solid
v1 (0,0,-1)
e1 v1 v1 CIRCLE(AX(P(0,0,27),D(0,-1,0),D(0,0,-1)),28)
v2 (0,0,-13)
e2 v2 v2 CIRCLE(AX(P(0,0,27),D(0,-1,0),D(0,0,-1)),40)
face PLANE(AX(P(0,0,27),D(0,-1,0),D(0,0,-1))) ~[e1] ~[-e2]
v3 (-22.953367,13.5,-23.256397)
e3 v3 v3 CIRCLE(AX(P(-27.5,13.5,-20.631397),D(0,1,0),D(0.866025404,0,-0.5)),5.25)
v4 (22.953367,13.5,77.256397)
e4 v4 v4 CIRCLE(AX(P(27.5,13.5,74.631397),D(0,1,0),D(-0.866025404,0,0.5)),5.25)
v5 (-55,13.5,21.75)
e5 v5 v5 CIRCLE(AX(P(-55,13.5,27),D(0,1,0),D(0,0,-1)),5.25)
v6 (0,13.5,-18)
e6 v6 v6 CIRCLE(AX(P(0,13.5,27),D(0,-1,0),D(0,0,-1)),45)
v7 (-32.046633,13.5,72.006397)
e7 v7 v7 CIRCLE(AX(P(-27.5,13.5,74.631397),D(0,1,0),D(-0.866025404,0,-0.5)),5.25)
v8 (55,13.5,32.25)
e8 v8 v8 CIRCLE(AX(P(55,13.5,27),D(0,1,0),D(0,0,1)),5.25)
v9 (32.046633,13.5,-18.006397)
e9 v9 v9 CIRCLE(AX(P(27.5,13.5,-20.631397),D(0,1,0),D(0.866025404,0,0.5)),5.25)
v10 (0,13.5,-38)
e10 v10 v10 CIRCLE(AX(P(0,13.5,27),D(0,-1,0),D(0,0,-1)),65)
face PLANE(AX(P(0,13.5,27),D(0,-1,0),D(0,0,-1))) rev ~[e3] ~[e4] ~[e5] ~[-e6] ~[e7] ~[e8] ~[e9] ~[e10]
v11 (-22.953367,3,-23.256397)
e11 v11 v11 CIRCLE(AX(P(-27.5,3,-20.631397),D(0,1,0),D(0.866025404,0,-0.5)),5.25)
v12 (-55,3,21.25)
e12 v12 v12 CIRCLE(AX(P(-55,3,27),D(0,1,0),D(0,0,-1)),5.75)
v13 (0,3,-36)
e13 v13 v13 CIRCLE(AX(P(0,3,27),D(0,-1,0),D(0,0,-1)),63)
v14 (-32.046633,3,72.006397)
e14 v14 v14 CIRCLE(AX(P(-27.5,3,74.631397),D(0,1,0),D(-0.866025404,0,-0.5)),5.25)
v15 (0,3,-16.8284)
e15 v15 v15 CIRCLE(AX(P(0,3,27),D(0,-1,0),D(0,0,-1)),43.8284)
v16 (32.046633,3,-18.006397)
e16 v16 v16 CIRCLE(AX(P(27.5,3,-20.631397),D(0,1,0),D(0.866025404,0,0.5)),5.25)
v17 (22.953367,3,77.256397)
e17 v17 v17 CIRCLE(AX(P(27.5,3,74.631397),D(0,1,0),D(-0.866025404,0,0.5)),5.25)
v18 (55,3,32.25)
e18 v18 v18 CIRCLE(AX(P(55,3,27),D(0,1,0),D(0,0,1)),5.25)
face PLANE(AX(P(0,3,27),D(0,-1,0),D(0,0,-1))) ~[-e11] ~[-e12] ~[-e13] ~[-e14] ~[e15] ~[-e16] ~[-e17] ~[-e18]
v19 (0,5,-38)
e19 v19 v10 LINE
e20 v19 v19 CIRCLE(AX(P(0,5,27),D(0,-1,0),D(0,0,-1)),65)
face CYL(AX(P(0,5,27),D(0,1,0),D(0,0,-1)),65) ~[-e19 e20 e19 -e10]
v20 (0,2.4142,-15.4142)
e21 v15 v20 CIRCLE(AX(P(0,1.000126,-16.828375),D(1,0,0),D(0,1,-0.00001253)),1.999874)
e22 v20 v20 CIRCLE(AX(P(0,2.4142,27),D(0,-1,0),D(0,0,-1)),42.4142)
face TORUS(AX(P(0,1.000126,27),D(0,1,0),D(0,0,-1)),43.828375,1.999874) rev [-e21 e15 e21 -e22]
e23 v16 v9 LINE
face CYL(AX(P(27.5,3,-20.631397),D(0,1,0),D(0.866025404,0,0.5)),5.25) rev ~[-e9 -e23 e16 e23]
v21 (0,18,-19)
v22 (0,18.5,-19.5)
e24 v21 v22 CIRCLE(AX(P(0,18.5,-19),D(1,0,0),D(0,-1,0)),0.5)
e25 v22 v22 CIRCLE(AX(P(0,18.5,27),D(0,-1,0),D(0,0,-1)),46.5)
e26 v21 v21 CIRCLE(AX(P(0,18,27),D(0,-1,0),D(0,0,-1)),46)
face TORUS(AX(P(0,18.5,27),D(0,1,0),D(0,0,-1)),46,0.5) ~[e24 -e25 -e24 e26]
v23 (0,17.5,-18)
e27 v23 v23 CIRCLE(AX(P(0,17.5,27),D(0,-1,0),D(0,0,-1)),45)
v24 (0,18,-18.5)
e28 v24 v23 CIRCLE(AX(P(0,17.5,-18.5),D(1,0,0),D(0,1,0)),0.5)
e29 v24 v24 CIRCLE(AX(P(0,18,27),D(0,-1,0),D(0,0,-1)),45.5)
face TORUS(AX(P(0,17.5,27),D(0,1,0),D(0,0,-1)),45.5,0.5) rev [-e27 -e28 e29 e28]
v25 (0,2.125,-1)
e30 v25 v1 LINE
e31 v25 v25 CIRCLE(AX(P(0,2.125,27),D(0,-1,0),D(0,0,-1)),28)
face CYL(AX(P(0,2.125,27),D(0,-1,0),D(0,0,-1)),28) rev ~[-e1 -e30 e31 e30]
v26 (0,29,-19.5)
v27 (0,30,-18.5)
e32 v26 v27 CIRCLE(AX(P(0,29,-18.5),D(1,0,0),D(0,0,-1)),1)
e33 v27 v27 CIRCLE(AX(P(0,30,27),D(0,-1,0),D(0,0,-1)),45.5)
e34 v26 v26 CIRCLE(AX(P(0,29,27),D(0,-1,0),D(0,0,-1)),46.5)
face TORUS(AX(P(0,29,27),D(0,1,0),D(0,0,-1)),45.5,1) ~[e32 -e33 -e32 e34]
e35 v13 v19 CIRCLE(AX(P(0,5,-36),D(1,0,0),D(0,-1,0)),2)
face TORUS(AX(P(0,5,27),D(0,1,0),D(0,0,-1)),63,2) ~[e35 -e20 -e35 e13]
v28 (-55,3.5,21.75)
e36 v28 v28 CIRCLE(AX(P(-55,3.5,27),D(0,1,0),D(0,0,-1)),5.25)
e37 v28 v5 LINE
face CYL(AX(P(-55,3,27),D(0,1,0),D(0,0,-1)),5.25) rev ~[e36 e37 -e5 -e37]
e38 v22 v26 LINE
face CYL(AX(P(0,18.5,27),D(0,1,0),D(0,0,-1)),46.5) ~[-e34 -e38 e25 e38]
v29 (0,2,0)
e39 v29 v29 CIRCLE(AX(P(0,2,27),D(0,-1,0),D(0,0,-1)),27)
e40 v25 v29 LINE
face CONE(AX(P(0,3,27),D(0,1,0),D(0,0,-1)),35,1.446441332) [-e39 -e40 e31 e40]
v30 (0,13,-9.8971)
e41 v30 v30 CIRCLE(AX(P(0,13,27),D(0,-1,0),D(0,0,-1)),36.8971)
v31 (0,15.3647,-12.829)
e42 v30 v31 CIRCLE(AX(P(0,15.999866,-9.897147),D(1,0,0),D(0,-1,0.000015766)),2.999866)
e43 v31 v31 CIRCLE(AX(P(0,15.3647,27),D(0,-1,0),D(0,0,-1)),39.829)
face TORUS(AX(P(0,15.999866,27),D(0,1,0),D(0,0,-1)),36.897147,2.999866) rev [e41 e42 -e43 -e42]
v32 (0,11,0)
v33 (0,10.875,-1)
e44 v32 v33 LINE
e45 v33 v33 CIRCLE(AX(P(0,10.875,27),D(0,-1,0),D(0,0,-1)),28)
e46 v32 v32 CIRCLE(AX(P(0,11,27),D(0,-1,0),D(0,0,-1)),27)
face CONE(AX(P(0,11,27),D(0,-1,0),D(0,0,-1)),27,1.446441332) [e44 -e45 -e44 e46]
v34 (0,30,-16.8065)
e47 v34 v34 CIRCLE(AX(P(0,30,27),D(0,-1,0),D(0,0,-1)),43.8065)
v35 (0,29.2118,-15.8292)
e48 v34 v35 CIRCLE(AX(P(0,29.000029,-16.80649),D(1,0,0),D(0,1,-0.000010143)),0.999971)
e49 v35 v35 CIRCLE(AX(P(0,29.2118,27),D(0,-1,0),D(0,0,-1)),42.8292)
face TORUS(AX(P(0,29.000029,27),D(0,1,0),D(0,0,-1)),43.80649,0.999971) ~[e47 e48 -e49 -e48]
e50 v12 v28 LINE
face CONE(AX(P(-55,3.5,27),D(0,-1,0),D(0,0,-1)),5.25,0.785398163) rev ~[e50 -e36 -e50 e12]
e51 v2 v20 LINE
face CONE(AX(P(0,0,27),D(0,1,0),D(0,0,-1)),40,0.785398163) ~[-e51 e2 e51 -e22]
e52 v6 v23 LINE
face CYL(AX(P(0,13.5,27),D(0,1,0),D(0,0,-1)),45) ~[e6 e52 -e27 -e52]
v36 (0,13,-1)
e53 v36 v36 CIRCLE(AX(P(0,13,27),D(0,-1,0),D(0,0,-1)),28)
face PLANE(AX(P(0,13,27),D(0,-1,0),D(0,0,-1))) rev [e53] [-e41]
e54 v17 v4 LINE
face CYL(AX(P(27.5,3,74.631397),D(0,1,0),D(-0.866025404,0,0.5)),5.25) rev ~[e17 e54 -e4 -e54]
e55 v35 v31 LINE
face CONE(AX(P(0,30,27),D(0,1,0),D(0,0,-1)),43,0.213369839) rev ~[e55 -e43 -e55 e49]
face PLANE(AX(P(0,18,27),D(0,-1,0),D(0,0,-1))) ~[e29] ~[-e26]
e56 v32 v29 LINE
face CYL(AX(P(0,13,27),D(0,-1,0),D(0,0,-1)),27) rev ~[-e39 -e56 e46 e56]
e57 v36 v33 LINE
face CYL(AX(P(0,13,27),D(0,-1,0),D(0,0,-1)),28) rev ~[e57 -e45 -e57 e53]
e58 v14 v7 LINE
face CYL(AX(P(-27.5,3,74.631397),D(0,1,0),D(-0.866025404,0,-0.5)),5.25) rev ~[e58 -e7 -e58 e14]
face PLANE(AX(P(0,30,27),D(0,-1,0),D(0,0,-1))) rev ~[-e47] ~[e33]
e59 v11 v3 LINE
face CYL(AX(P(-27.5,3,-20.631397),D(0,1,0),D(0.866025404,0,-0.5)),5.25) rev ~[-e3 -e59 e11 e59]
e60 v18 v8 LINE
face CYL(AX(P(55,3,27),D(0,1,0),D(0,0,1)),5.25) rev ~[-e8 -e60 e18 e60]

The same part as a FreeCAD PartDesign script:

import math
import FreeCAD as App
import Part
import Sketcher
from FreeCAD import Vector
Q = App.Units.Quantity


def edges_at(feature, points):
    """Names of the edges that pass closest to the given points."""
    edges = feature.Shape.Edges
    near = lambda p: min(range(len(edges)), key=lambda i: edges[i].distToShape(Part.Vertex(*p))[0])
    return sorted({f"Edge{near(p) + 1}" for p in points})

doc = App.newDocument("Part")
body = doc.addObject("PartDesign::Body", "Body")

# Sketch on YZ plane
sketch1 = doc.addObject("Sketcher::SketchObject", "Sketch")
body.addObject(sketch1)
sketch1.AttachmentSupport = (doc.YZ_Plane, [""])
sketch1.MapMode = "FlatFace"
sketch1.addGeometry(Part.LineSegment(Vector(2.125, -1, 0), Vector(0, -1, 0)), False)
sketch1.addGeometry(Part.LineSegment(Vector(0, -1, 0), Vector(0, -13, 0)), False)
sketch1.addGeometry(Part.LineSegment(Vector(0, -13, 0), Vector(2.4142, -15.4142, 0)), False)
sketch1.addGeometry(Part.ArcOfCircle(Part.Circle(Vector(1, -16.8284, 0), Vector(0, 0, 1), 2), math.radians(0), math.radians(45)), False)
sketch1.addGeometry(Part.LineSegment(Vector(3, -16.8284, 0), Vector(3, -36, 0)), False)
sketch1.addGeometry(Part.ArcOfCircle(Part.Circle(Vector(5, -36, 0), Vector(0, 0, 1), 2), math.radians(180), math.radians(270)), False)
sketch1.addGeometry(Part.LineSegment(Vector(5, -38, 0), Vector(13.5, -38, 0)), False)
sketch1.addGeometry(Part.LineSegment(Vector(13.5, -38, 0), Vector(13.5, -18, 0)), False)
sketch1.addGeometry(Part.LineSegment(Vector(13.5, -18, 0), Vector(17.5, -18, 0)), False)
sketch1.addGeometry(Part.ArcOfCircle(Part.Circle(Vector(17.5, -18.5, 0), Vector(0, 0, 1), 0.5), math.radians(0), math.radians(90)), False)
sketch1.addGeometry(Part.LineSegment(Vector(18, -18.5, 0), Vector(18, -19, 0)), False)
sketch1.addGeometry(Part.ArcOfCircle(Part.Circle(Vector(18.5, -19, 0), Vector(0, 0, 1), 0.5), math.radians(180), math.radians(270)), False)
sketch1.addGeometry(Part.LineSegment(Vector(18.5, -19.5, 0), Vector(29, -19.5, 0)), False)
sketch1.addGeometry(Part.ArcOfCircle(Part.Circle(Vector(29, -18.5, 0), Vector(0, 0, 1), 1), math.radians(-90), math.radians(0)), False)
sketch1.addGeometry(Part.LineSegment(Vector(30, -18.5, 0), Vector(30, -16.8065, 0)), False)
sketch1.addGeometry(Part.ArcOfCircle(Part.Circle(Vector(29, -16.8065, 0), Vector(0, 0, 1), 1), math.radians(0), math.radians(77.771984)), False)
sketch1.addGeometry(Part.LineSegment(Vector(29.211795, -15.829221, 0), Vector(15.3647, -12.829, 0)), False)
sketch1.addGeometry(Part.ArcOfCircle(Part.Circle(Vector(16, -9.8971, 0), Vector(0, 0, 1), 3), math.radians(180), math.radians(257.773851)), False)
sketch1.addGeometry(Part.LineSegment(Vector(13, -9.8971, 0), Vector(13, -1, 0)), False)
sketch1.addGeometry(Part.LineSegment(Vector(13, -1, 0), Vector(10.875, -1, 0)), False)
sketch1.addGeometry(Part.LineSegment(Vector(10.875, -1, 0), Vector(11, 0, 0)), False)
sketch1.addGeometry(Part.LineSegment(Vector(11, 0, 0), Vector(2, 0, 0)), False)
sketch1.addGeometry(Part.LineSegment(Vector(2, 0, 0), Vector(2.125, -1, 0)), False)
sketch1.addGeometry(Part.LineSegment(Vector(30, 27, 0), Vector(0, 27, 0)), True)  # axis
sketch1.addConstraint(Sketcher.Constraint("Coincident", 0, 2, 1, 1))
sketch1.addConstraint(Sketcher.Constraint("Coincident", 1, 2, 2, 1))
sketch1.addConstraint(Sketcher.Constraint("Tangent", 2, 2, 3, 2))
sketch1.addConstraint(Sketcher.Constraint("Tangent", 3, 1, 4, 1))
sketch1.addConstraint(Sketcher.Constraint("Tangent", 4, 2, 5, 1))
sketch1.addConstraint(Sketcher.Constraint("Tangent", 5, 2, 6, 1))
sketch1.addConstraint(Sketcher.Constraint("Coincident", 6, 2, 7, 1))
sketch1.addConstraint(Sketcher.Constraint("Coincident", 7, 2, 8, 1))
sketch1.addConstraint(Sketcher.Constraint("Tangent", 8, 2, 9, 2))
sketch1.addConstraint(Sketcher.Constraint("Tangent", 9, 1, 10, 1))
sketch1.addConstraint(Sketcher.Constraint("Tangent", 10, 2, 11, 1))
sketch1.addConstraint(Sketcher.Constraint("Tangent", 11, 2, 12, 1))
sketch1.addConstraint(Sketcher.Constraint("Tangent", 12, 2, 13, 1))
sketch1.addConstraint(Sketcher.Constraint("Tangent", 13, 2, 14, 1))
sketch1.addConstraint(Sketcher.Constraint("Tangent", 14, 2, 15, 1))
sketch1.addConstraint(Sketcher.Constraint("Tangent", 15, 2, 16, 1))
sketch1.addConstraint(Sketcher.Constraint("Tangent", 16, 2, 17, 2))
sketch1.addConstraint(Sketcher.Constraint("Tangent", 17, 1, 18, 1))
sketch1.addConstraint(Sketcher.Constraint("Coincident", 18, 2, 19, 1))
sketch1.addConstraint(Sketcher.Constraint("Coincident", 19, 2, 20, 1))
sketch1.addConstraint(Sketcher.Constraint("Coincident", 20, 2, 21, 1))
sketch1.addConstraint(Sketcher.Constraint("Coincident", 21, 2, 22, 1))
sketch1.addConstraint(Sketcher.Constraint("Coincident", 22, 2, 0, 1))
sketch1.addConstraint(Sketcher.Constraint("Horizontal", 0))
sketch1.addConstraint(Sketcher.Constraint("Vertical", 1))
sketch1.addConstraint(Sketcher.Constraint("Vertical", 4))
sketch1.addConstraint(Sketcher.Constraint("Horizontal", 6))
sketch1.addConstraint(Sketcher.Constraint("Vertical", 7))
sketch1.addConstraint(Sketcher.Constraint("Horizontal", 8))
sketch1.addConstraint(Sketcher.Constraint("Vertical", 10))
sketch1.addConstraint(Sketcher.Constraint("Horizontal", 12))
sketch1.addConstraint(Sketcher.Constraint("Vertical", 14))
sketch1.addConstraint(Sketcher.Constraint("Vertical", 18))
sketch1.addConstraint(Sketcher.Constraint("Horizontal", 19))
sketch1.addConstraint(Sketcher.Constraint("Horizontal", 21))
sketch1.addConstraint(Sketcher.Constraint("Horizontal", 23))
sketch1.addConstraint(Sketcher.Constraint("Equal", 3, 5))
sketch1.addConstraint(Sketcher.Constraint("Equal", 9, 11))
sketch1.addConstraint(Sketcher.Constraint("Equal", 13, 15))
sketch1.addConstraint(Sketcher.Constraint("PointOnObject", 0, 2, -2))
sketch1.addConstraint(Sketcher.Constraint("PointOnObject", 20, 2, -1))
sketch1.addConstraint(Sketcher.Constraint("PointOnObject", 23, 2, -2))
sketch1.addConstraint(Sketcher.Constraint("Horizontal", 9, 3, 13, 3))
sketch1.addConstraint(Sketcher.Constraint("Horizontal", 0, 2, 18, 2))
sketch1.addConstraint(Sketcher.Constraint("Vertical", 14, 2, 23, 1))
sketch1.addConstraint(Sketcher.Constraint("Equal", 0, 19))
sketch1.addConstraint(Sketcher.Constraint("Equal", 20, 22))
sketch1.addConstraint(Sketcher.Constraint("Radius", 3, 2.0))
sketch1.addConstraint(Sketcher.Constraint("Radius", 13, 1.0))
sketch1.addConstraint(Sketcher.Constraint("Radius", 17, 3.0))
sketch1.addConstraint(Sketcher.Constraint("Radius", 9, 0.5))
sketch1.addConstraint(Sketcher.Constraint("DistanceX", 21, 2, 21, 1, 9.0))
sketch1.addConstraint(Sketcher.Constraint("DistanceY", 1, 2, 1, 1, 12.0))
sketch1.addConstraint(Sketcher.Constraint("DistanceY", 7, 1, 7, 2, 20.0))
sketch1.addConstraint(Sketcher.Constraint("DistanceX", 12, 1, 12, 2, 10.5))
sketch1.addConstraint(Sketcher.Constraint("DistanceX", -1, 1, 3, 3, 1.0))
sketch1.addConstraint(Sketcher.Constraint("DistanceY", 0, 2, -1, 1, 1.0))
sketch1.addConstraint(Sketcher.Constraint("DistanceX", -1, 1, 17, 1, 13.0))
sketch1.addConstraint(Sketcher.Constraint("DistanceX", 17, 3, 15, 3, 13.0))
sketch1.addConstraint(Sketcher.Constraint("DistanceX", 4, 2, 6, 2, 10.5))
sketch1.addConstraint(Sketcher.Constraint("Angle", 2, Q("-45 deg")))
sketch1.addConstraint(Sketcher.Constraint("DistanceY", 5, 3, -1, 1, 36.0))
sketch1.addConstraint(Sketcher.Constraint("DistanceY", -1, 1, 23, 1, 27.0))
sketch1.addConstraint(Sketcher.Constraint("DistanceX", 0, 2, 0, 1, 2.125))
sketch1.addConstraint(Sketcher.Constraint("DistanceY", 18, 1, 18, 2, 8.897))
sketch1.addConstraint(Sketcher.Constraint("DistanceY", 14, 1, 14, 2, 1.6935))
revolution = doc.addObject("PartDesign::Revolution", "Revolution")
body.addObject(revolution)
revolution.Profile = sketch1
revolution.ReferenceAxis = (sketch1, ["Axis0"])
revolution.Angle = 360

# Sketch on XZ plane
sketch2 = doc.addObject("Sketcher::SketchObject", "Sketch001")
body.addObject(sketch2)
sketch2.AttachmentSupport = (doc.XZ_Plane, [""])
sketch2.MapMode = "FlatFace"
sketch2.AttachmentOffset = App.Placement(Vector(0, 0, -3), App.Rotation())
sketch2.addGeometry(Part.Circle(Vector(-55, 27, 0), Vector(0, 0, 1), 5.25), False)
sketch2.addConstraint(Sketcher.Constraint("Diameter", 0, 10.5))
sketch2.addConstraint(Sketcher.Constraint("DistanceX", 0, 3, -1, 1, 55.0))
sketch2.addConstraint(Sketcher.Constraint("DistanceY", -1, 1, 0, 3, 27.0))
doc.recompute()
hole = doc.addObject("PartDesign::Hole", "Hole")
body.addObject(hole)
hole.Profile = sketch2
hole.ThreadType = "None"
hole.Diameter = 10.5
hole.DepthType = "ThroughAll"
doc.recompute()

chamfer = doc.addObject("PartDesign::Chamfer", "Chamfer")
body.addObject(chamfer)
chamfer.Base = (hole, edges_at(hole, [(-55, 3, 32.25)]))
chamfer.Size = 0.5
doc.recompute()

datumline = doc.addObject("PartDesign::Line", "DatumLine")
body.addObject(datumline)
datumline.Placement = App.Placement(Vector(0, 0, 27), App.Rotation(Vector(0, 0, 1), Vector(0, 1, 0)))
polarpattern = doc.addObject("PartDesign::PolarPattern", "PolarPattern")
body.addObject(polarpattern)
polarpattern.Originals = [hole]
polarpattern.Axis = (datumline, [""])
polarpattern.Angle = 360
polarpattern.Occurrences = 6
body.Tip = polarpattern

doc.recompute()
